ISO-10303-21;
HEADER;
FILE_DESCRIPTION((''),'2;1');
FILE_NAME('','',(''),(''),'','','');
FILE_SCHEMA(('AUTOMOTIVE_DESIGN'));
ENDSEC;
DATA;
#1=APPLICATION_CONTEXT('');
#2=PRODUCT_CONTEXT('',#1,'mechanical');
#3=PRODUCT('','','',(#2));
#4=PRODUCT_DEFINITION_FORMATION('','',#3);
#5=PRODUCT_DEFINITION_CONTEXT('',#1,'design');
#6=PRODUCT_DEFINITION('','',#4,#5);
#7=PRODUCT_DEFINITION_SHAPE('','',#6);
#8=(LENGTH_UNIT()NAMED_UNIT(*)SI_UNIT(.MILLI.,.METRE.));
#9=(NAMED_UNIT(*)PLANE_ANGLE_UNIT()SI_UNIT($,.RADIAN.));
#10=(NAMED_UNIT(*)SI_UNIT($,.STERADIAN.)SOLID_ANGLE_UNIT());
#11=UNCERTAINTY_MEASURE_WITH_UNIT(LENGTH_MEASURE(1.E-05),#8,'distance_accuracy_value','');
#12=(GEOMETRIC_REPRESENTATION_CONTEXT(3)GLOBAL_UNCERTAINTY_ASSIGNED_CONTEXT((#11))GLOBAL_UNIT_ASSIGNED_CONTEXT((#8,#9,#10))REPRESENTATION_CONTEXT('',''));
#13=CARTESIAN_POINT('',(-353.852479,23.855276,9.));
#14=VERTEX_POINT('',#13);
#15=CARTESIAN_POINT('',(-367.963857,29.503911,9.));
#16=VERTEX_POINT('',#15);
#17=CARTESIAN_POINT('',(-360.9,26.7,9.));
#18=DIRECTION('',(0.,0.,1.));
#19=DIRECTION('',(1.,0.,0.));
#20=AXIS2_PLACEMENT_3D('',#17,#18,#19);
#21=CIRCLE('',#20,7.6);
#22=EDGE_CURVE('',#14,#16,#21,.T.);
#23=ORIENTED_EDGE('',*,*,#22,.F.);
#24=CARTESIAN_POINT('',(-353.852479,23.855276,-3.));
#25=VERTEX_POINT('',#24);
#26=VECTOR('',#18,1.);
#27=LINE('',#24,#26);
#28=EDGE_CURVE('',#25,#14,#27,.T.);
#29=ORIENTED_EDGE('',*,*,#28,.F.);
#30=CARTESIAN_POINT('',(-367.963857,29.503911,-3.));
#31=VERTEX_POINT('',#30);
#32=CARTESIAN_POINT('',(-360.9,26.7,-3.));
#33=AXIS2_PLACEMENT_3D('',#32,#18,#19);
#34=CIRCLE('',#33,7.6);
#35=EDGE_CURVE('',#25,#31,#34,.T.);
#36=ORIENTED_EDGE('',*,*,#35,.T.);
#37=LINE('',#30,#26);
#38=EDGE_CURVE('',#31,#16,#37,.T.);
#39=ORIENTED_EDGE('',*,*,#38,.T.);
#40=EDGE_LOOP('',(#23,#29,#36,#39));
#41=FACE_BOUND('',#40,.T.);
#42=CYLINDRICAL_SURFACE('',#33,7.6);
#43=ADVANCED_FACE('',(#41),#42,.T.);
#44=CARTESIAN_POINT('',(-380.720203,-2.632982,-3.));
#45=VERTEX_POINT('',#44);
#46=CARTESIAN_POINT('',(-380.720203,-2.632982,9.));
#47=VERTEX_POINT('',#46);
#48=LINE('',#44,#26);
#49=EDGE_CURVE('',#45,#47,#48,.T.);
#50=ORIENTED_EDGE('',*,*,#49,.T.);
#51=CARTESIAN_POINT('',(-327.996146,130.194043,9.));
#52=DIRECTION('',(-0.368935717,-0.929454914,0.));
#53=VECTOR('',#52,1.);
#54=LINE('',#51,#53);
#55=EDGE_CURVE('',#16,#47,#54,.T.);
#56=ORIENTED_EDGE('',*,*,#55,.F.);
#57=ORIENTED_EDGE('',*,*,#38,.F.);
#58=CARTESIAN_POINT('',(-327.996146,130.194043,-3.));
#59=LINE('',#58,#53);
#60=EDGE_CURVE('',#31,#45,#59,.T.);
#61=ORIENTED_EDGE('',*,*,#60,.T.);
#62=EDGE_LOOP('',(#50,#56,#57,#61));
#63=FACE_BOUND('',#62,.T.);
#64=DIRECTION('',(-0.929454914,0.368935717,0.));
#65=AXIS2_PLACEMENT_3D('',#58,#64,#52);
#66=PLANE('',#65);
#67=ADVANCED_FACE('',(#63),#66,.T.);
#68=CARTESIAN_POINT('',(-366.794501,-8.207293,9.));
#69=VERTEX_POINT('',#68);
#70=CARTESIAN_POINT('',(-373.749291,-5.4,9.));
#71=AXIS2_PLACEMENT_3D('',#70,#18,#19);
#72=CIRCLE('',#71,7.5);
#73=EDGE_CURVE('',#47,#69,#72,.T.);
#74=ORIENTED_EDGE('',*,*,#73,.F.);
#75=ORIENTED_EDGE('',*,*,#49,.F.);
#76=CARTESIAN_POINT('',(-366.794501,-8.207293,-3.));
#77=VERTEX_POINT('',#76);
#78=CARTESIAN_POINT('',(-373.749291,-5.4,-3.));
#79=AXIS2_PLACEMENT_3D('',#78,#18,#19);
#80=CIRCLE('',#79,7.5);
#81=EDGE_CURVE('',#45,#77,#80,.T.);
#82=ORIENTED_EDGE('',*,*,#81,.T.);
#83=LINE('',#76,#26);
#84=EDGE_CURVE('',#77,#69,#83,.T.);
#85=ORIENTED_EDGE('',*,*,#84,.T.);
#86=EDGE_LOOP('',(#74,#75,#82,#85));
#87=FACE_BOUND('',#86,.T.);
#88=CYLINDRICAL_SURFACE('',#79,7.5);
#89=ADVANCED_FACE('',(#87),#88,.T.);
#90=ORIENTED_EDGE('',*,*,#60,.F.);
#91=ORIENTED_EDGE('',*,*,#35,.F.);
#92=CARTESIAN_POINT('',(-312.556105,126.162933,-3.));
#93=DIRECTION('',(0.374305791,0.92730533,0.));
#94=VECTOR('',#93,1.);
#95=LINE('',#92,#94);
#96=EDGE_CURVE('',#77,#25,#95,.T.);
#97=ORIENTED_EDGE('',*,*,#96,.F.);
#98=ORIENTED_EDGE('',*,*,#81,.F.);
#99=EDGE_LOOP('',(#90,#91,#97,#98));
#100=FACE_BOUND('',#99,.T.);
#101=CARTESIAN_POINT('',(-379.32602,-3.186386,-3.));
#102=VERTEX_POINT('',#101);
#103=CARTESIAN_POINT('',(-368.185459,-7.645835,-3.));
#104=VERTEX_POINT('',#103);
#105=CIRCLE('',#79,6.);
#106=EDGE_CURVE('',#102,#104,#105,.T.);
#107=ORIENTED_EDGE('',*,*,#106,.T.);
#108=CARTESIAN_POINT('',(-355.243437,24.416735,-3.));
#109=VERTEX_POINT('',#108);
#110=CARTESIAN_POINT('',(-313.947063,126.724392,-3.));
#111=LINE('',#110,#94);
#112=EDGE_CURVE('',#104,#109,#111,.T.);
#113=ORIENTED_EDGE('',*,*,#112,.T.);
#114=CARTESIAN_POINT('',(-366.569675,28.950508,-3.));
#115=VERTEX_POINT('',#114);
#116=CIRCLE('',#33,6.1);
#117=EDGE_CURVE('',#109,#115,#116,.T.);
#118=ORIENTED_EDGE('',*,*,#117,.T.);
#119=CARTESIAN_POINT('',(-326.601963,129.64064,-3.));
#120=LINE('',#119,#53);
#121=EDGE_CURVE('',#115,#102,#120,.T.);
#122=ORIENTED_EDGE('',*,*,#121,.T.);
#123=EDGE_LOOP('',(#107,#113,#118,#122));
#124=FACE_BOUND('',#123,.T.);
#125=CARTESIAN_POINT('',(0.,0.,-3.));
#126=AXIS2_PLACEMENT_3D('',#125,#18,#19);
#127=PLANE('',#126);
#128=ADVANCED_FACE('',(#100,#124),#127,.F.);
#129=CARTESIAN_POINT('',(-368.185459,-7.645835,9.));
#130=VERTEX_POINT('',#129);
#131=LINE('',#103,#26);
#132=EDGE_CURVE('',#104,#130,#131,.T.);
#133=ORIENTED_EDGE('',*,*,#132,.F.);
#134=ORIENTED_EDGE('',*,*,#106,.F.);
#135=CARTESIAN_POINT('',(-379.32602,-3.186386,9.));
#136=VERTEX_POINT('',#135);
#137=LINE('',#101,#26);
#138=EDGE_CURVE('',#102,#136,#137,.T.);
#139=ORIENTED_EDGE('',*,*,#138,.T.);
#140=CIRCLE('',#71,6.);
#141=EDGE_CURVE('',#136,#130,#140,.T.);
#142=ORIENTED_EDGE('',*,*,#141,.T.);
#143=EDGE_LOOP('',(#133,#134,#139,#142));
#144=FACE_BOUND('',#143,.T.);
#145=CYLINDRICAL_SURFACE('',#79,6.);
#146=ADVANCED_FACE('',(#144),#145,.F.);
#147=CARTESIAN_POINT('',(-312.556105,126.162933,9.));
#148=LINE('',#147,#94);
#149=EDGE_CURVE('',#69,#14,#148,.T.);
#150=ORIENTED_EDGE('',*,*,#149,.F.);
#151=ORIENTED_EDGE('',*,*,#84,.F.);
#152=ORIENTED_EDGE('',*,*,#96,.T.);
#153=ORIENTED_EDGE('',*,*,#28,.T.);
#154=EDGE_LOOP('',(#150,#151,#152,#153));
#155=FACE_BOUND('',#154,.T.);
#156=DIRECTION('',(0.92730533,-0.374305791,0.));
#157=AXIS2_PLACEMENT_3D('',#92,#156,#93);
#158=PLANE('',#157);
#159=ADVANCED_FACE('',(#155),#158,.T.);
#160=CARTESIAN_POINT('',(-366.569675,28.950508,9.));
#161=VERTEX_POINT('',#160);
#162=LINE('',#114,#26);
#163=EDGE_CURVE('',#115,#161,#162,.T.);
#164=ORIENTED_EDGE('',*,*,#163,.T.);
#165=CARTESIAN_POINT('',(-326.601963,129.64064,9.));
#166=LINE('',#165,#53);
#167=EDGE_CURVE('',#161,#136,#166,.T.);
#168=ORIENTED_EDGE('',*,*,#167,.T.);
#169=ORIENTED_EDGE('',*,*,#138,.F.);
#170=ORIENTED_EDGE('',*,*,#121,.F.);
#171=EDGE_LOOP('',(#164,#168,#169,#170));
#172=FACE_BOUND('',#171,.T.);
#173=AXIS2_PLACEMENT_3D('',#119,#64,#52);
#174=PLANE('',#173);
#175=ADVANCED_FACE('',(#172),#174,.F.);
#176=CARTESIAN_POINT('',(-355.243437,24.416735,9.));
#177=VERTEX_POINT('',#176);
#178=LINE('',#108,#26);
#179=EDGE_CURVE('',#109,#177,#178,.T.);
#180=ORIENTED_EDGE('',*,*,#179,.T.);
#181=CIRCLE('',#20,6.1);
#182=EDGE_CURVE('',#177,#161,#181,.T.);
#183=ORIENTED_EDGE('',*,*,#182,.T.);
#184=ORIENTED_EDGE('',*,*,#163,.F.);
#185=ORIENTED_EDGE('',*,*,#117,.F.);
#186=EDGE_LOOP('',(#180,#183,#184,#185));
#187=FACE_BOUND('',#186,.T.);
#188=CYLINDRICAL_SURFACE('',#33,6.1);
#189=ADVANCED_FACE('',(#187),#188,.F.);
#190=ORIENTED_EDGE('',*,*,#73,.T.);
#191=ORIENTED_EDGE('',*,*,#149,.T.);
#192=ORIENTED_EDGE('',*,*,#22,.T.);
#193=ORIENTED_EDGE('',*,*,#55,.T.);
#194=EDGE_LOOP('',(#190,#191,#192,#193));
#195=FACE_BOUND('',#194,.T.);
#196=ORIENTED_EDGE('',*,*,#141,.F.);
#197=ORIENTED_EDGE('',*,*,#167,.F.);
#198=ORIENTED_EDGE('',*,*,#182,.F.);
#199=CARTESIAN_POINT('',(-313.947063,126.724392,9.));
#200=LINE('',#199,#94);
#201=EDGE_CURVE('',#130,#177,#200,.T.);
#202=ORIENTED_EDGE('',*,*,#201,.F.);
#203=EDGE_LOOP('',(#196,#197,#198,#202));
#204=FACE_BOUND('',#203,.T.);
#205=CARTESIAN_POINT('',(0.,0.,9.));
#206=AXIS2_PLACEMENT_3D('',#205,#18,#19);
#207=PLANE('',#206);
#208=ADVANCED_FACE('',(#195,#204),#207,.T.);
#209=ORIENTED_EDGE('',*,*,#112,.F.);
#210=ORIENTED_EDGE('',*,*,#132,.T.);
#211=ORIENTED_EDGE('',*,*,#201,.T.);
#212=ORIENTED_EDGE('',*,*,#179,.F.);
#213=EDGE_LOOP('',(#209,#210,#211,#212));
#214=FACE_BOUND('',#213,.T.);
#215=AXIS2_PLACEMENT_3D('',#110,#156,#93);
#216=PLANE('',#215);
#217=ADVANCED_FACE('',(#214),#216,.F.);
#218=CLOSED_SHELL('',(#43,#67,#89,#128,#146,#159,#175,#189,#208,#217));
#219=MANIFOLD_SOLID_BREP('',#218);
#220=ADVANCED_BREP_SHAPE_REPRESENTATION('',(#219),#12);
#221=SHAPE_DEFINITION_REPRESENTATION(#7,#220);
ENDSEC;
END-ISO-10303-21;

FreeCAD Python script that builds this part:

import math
import FreeCAD as App
import Part
import Sketcher
Q = App.Units.Quantity

doc = App.newDocument("Part")
body = doc.addObject("PartDesign::Body", "Body")

# Sketch on XY plane
sketch1 = body.newObject("Sketcher::SketchObject", "Sketch")
sketch1.AttachmentSupport = (doc.getObject("XY_Plane"), [""])
sketch1.MapMode = "FlatFace"
sketch1.AttachmentOffset = App.Placement(App.Vector(0, 0, 3), App.Rotation())
sketch1.addGeometry(Part.LineSegment(App.Vector(-367, -8, 0), App.Vector(-354, 24, 0)), False)
sketch1.addGeometry(Part.ArcOfCircle(Part.Circle(App.Vector(-361, 27, 0), App.Vector(0, 0, 1), 8), math.radians(-22), math.radians(158)), False)
sketch1.addGeometry(Part.LineSegment(App.Vector(-368, 30, 0), App.Vector(-381, -3, 0)), False)
sketch1.addGeometry(Part.ArcOfCircle(Part.Circle(App.Vector(-374, -5, 0), App.Vector(0, 0, 1), 8), math.radians(158), math.radians(338)), False)
sketch1.addGeometry(Part.LineSegment(App.Vector(-379, -3, 0), App.Vector(-367, 29, 0)), False)
sketch1.addGeometry(Part.ArcOfCircle(Part.Circle(App.Vector(-361, 27, 0), App.Vector(0, 0, 1), 6), math.radians(-22), math.radians(158)), False)
sketch1.addGeometry(Part.LineSegment(App.Vector(-355, 24, 0), App.Vector(-368, -8, 0)), False)
sketch1.addGeometry(Part.ArcOfCircle(Part.Circle(App.Vector(-374, -5, 0), App.Vector(0, 0, 1), 6), math.radians(158), math.radians(338)), False)
sketch1.addConstraint(Sketcher.Constraint("Tangent", 0, 2, 1, 1))
sketch1.addConstraint(Sketcher.Constraint("Tangent", 1, 2, 2, 1))
sketch1.addConstraint(Sketcher.Constraint("Tangent", 2, 2, 3, 1))
sketch1.addConstraint(Sketcher.Constraint("Tangent", 3, 2, 0, 1))
sketch1.addConstraint(Sketcher.Constraint("Tangent", 4, 2, 5, 2))
sketch1.addConstraint(Sketcher.Constraint("Tangent", 5, 1, 6, 1))
sketch1.addConstraint(Sketcher.Constraint("Tangent", 6, 2, 7, 2))
sketch1.addConstraint(Sketcher.Constraint("Tangent", 7, 1, 4, 1))
sketch1.addConstraint(Sketcher.Constraint("Coincident", 5, 3, 1, 3))
sketch1.addConstraint(Sketcher.Constraint("Coincident", 7, 3, 3, 3))
sketch1.addConstraint(Sketcher.Constraint("Parallel", 2, 4))
sketch1.addConstraint(Sketcher.Constraint("Radius", 7, Q("6 mm")))
sketch1.addConstraint(Sketcher.Constraint("Radius", 1, Q("7.6 mm")))
sketch1.addConstraint(Sketcher.Constraint("Radius", 3, Q("7.5 mm")))
sketch1.addConstraint(Sketcher.Constraint("DistanceX", 1, 3, -1, 1, Q("360.9 mm")))
sketch1.addConstraint(Sketcher.Constraint("DistanceY", -1, 1, 1, 3, Q("26.7 mm")))
sketch1.addConstraint(Sketcher.Constraint("DistanceY", 3, 3, -1, 1, Q("5.4 mm")))
sketch1.addConstraint(Sketcher.Constraint("Angle", 2, Q("-111.649995 deg")))
pad1 = body.newObject("PartDesign::Pad", "Pad")
pad1.Profile = sketch1
pad1.Length = 12
pad1.Midplane = True

doc.recompute()
